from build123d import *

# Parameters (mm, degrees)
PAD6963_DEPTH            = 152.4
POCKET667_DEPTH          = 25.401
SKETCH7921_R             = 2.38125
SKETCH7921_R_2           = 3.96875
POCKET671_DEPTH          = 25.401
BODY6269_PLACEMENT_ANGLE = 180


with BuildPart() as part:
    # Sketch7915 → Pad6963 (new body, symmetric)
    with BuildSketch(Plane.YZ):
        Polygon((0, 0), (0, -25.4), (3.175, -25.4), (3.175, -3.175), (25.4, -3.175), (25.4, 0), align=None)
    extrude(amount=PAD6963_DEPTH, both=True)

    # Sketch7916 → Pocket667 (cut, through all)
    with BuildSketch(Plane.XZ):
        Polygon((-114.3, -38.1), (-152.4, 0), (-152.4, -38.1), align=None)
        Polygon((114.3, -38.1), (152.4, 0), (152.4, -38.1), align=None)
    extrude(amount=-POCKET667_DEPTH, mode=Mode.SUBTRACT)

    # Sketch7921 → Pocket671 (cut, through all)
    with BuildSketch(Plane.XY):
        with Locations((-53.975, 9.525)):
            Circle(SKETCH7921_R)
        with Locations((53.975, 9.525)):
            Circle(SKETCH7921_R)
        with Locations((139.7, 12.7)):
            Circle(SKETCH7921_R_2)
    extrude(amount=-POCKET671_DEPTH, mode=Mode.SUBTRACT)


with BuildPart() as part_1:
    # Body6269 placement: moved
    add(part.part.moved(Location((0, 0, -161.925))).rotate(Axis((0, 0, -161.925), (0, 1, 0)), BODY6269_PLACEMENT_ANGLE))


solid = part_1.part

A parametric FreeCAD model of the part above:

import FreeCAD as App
import Part
import Sketcher
from FreeCAD import Vector
Q = App.Units.Quantity

doc = App.newDocument("Part")
body = doc.addObject("PartDesign::Body", "Body")

# Sketch on YZ plane
sketch1 = body.newObject("Sketcher::SketchObject", "Sketch")
sketch1.AttachmentSupport = (doc.getObject("YZ_Plane"), [""])
sketch1.MapMode = "FlatFace"
sketch1.addGeometry(Part.LineSegment(Vector(0, 0, 0), Vector(0, -25.4, 0)), False)
sketch1.addGeometry(Part.LineSegment(Vector(0, -25.4, 0), Vector(3.175, -25.4, 0)), False)
sketch1.addGeometry(Part.LineSegment(Vector(3.175, -25.4, 0), Vector(3.175, -3.175, 0)), False)
sketch1.addGeometry(Part.LineSegment(Vector(3.175, -3.175, 0), Vector(25.4, -3.175, 0)), False)
sketch1.addGeometry(Part.LineSegment(Vector(25.4, -3.175, 0), Vector(25.4, 0, 0)), False)
sketch1.addGeometry(Part.LineSegment(Vector(25.4, 0, 0), Vector(0, 0, 0)), False)
sketch1.addConstraint(Sketcher.Constraint("Coincident", 0, 2, 1, 1))
sketch1.addConstraint(Sketcher.Constraint("Coincident", 1, 2, 2, 1))
sketch1.addConstraint(Sketcher.Constraint("Coincident", 2, 2, 3, 1))
sketch1.addConstraint(Sketcher.Constraint("Coincident", 3, 2, 4, 1))
sketch1.addConstraint(Sketcher.Constraint("Coincident", 4, 2, 5, 1))
sketch1.addConstraint(Sketcher.Constraint("Coincident", 5, 2, 0, 1))
sketch1.addConstraint(Sketcher.Constraint("Vertical", 0))
sketch1.addConstraint(Sketcher.Constraint("Horizontal", 1))
sketch1.addConstraint(Sketcher.Constraint("Vertical", 2))
sketch1.addConstraint(Sketcher.Constraint("Horizontal", 3))
sketch1.addConstraint(Sketcher.Constraint("Vertical", 4))
sketch1.addConstraint(Sketcher.Constraint("Horizontal", 5))
sketch1.addConstraint(Sketcher.Constraint("Coincident", 5, 2, -1, 1))
sketch1.addConstraint(Sketcher.Constraint("Equal", 5, 0))
sketch1.addConstraint(Sketcher.Constraint("Equal", 3, 2))
sketch1.addConstraint(Sketcher.Constraint("DistanceX", 5, 2, 5, 1, Q("1 in")))
sketch1.addConstraint(Sketcher.Constraint("DistanceX", 1, 1, 1, 2, Q("0.125 in")))
pad1 = body.newObject("PartDesign::Pad", "Pad")
pad1.Profile = sketch1
pad1.Length = Q("12 in")
pad1.Midplane = True

# Sketch on XZ plane
sketch2 = body.newObject("Sketcher::SketchObject", "Sketch001")
sketch2.AttachmentSupport = (doc.getObject("XZ_Plane"), [""])
sketch2.MapMode = "FlatFace"
sketch2.addGeometry(Part.LineSegment(Vector(-114.3, -38.1, 0), Vector(-152.4, 0, 0)), False)
sketch2.addGeometry(Part.LineSegment(Vector(-152.4, 0, 0), Vector(-152.4, -38.1, 0)), False)
sketch2.addGeometry(Part.LineSegment(Vector(-152.4, -38.1, 0), Vector(-114.3, -38.1, 0)), False)
sketch2.addGeometry(Part.LineSegment(Vector(152.4, 0, 0), Vector(114.3, -38.1, 0)), False)
sketch2.addGeometry(Part.LineSegment(Vector(114.3, -38.1, 0), Vector(152.4, -38.1, 0)), False)
sketch2.addGeometry(Part.LineSegment(Vector(152.4, -38.1, 0), Vector(152.4, 0, 0)), False)
sketch2.addConstraint(Sketcher.Constraint("Coincident", 0, 2, 1, 1))
sketch2.addConstraint(Sketcher.Constraint("Coincident", 1, 2, 2, 1))
sketch2.addConstraint(Sketcher.Constraint("Coincident", 2, 2, 0, 1))
sketch2.addConstraint(Sketcher.Constraint("Coincident", 3, 2, 4, 1))
sketch2.addConstraint(Sketcher.Constraint("Coincident", 4, 2, 5, 1))
sketch2.addConstraint(Sketcher.Constraint("Coincident", 5, 2, 3, 1))
sketch2.addConstraint(Sketcher.Constraint("Vertical", 1))
sketch2.addConstraint(Sketcher.Constraint("Horizontal", 2))
sketch2.addConstraint(Sketcher.Constraint("Horizontal", 4))
sketch2.addConstraint(Sketcher.Constraint("Vertical", 5))
sketch2.addConstraint(Sketcher.Constraint("Symmetric", 0, 2, 5, 2, -1, 1))
sketch2.addConstraint(Sketcher.Constraint("Symmetric", 2, 2, 3, 2, -2))
sketch2.addConstraint(Sketcher.Constraint("PointOnObject", 0, 2, -1))
sketch2.addConstraint(Sketcher.Constraint("Perpendicular", 0, 3))
sketch2.addConstraint(Sketcher.Constraint("DistanceX", 2, 1, 2, 2, Q("1.5 in")))
sketch2.addConstraint(Sketcher.Constraint("DistanceX", 0, 2, -1, 1, Q("6 in")))
pocket1 = body.newObject("PartDesign::Pocket", "Pocket")
pocket1.Profile = sketch2
pocket1.Type = "ThroughAll"

# Sketch on XY plane
sketch3 = body.newObject("Sketcher::SketchObject", "Sketch002")
sketch3.AttachmentSupport = (doc.getObject("XY_Plane"), [""])
sketch3.MapMode = "FlatFace"
sketch3.addGeometry(Part.Circle(Vector(-53.975, 9.525, 0), Vector(0, 0, 1), 2.38125), False)
sketch3.addGeometry(Part.Circle(Vector(53.975, 9.525, 0), Vector(0, 0, 1), 2.38125), False)
sketch3.addGeometry(Part.Circle(Vector(139.7, 12.7, 0), Vector(0, 0, 1), 3.96875), False)
sketch3.addConstraint(Sketcher.Constraint("Equal", 0, 1))
sketch3.addConstraint(Sketcher.Constraint("Symmetric", 0, 3, 1, 3, -2))
sketch3.addConstraint(Sketcher.Constraint("Diameter", 0, Q("0.1875 in")))
sketch3.addConstraint(Sketcher.Constraint("Diameter", 2, Q("0.3125 in")))
sketch3.addConstraint(Sketcher.Constraint("DistanceX", -1, 1, 2, 3, Q("5.5 in")))
sketch3.addConstraint(Sketcher.Constraint("DistanceY", -1, 1, 2, 3, Q("0.5 in")))
sketch3.addConstraint(Sketcher.Constraint("DistanceX", 0, 3, 1, 3, Q("4.25 in")))
sketch3.addConstraint(Sketcher.Constraint("DistanceY", -1, 1, 0, 3, Q("0.375 in")))
pocket2 = body.newObject("PartDesign::Pocket", "Pocket001")
pocket2.Profile = sketch3
pocket2.Type = "ThroughAll"
body2 = doc.addObject("PartDesign::Body", "Body001")
doc.recompute()

body.Placement = App.Placement(Vector(0, 0, -161.925), App.Rotation(Vector(0, 1, 0), 180))
boolean = body2.newObject("PartDesign::Boolean", "Boolean")
boolean.Type = "Fuse"
boolean.addObjects([body])

doc.recompute()
